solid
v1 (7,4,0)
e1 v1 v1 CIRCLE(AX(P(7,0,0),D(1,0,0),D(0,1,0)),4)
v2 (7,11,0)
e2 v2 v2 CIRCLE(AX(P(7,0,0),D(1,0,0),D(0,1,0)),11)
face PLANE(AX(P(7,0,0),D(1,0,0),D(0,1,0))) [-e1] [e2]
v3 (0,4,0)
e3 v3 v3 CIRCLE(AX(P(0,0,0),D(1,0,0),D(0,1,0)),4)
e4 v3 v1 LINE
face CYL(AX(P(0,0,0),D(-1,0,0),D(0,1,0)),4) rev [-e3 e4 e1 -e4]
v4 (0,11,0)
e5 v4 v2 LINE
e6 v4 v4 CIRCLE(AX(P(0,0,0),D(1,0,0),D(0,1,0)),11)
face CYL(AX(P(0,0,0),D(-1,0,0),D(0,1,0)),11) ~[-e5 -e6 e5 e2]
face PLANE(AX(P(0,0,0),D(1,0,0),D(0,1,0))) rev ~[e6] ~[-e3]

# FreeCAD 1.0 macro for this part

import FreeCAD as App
import Part
import Sketcher
Q = App.Units.Quantity

doc = App.newDocument("Part")
body = doc.addObject("PartDesign::Body", "Body")

sketch1 = doc.addObject("Sketcher::SketchObject", "Sketch")
body.addObject(sketch1)
sketch1.AttachmentSupport = (doc.YZ_Plane, [""])
sketch1.MapMode = "FlatFace"
sketch1.addGeometry([
    Part.Circle(App.Vector(0, 0, 0), App.Vector(0, 0, 1), 11),
    Part.Circle(App.Vector(0, 0, 0), App.Vector(0, 0, 1), 4),
], False)
sketch1.addConstraint([
    Sketcher.Constraint("Coincident", 0, 3, -1, 1),
    Sketcher.Constraint("Coincident", 1, 3, -1, 1),
    Sketcher.Constraint("Diameter", 0, Q("22 mm")),
    Sketcher.Constraint("Diameter", 1, Q("8 mm")),
])
pad1 = doc.addObject("PartDesign::Pad", "Pad")
body.addObject(pad1)
pad1.Profile = sketch1
pad1.Length = 7

doc.recompute()
